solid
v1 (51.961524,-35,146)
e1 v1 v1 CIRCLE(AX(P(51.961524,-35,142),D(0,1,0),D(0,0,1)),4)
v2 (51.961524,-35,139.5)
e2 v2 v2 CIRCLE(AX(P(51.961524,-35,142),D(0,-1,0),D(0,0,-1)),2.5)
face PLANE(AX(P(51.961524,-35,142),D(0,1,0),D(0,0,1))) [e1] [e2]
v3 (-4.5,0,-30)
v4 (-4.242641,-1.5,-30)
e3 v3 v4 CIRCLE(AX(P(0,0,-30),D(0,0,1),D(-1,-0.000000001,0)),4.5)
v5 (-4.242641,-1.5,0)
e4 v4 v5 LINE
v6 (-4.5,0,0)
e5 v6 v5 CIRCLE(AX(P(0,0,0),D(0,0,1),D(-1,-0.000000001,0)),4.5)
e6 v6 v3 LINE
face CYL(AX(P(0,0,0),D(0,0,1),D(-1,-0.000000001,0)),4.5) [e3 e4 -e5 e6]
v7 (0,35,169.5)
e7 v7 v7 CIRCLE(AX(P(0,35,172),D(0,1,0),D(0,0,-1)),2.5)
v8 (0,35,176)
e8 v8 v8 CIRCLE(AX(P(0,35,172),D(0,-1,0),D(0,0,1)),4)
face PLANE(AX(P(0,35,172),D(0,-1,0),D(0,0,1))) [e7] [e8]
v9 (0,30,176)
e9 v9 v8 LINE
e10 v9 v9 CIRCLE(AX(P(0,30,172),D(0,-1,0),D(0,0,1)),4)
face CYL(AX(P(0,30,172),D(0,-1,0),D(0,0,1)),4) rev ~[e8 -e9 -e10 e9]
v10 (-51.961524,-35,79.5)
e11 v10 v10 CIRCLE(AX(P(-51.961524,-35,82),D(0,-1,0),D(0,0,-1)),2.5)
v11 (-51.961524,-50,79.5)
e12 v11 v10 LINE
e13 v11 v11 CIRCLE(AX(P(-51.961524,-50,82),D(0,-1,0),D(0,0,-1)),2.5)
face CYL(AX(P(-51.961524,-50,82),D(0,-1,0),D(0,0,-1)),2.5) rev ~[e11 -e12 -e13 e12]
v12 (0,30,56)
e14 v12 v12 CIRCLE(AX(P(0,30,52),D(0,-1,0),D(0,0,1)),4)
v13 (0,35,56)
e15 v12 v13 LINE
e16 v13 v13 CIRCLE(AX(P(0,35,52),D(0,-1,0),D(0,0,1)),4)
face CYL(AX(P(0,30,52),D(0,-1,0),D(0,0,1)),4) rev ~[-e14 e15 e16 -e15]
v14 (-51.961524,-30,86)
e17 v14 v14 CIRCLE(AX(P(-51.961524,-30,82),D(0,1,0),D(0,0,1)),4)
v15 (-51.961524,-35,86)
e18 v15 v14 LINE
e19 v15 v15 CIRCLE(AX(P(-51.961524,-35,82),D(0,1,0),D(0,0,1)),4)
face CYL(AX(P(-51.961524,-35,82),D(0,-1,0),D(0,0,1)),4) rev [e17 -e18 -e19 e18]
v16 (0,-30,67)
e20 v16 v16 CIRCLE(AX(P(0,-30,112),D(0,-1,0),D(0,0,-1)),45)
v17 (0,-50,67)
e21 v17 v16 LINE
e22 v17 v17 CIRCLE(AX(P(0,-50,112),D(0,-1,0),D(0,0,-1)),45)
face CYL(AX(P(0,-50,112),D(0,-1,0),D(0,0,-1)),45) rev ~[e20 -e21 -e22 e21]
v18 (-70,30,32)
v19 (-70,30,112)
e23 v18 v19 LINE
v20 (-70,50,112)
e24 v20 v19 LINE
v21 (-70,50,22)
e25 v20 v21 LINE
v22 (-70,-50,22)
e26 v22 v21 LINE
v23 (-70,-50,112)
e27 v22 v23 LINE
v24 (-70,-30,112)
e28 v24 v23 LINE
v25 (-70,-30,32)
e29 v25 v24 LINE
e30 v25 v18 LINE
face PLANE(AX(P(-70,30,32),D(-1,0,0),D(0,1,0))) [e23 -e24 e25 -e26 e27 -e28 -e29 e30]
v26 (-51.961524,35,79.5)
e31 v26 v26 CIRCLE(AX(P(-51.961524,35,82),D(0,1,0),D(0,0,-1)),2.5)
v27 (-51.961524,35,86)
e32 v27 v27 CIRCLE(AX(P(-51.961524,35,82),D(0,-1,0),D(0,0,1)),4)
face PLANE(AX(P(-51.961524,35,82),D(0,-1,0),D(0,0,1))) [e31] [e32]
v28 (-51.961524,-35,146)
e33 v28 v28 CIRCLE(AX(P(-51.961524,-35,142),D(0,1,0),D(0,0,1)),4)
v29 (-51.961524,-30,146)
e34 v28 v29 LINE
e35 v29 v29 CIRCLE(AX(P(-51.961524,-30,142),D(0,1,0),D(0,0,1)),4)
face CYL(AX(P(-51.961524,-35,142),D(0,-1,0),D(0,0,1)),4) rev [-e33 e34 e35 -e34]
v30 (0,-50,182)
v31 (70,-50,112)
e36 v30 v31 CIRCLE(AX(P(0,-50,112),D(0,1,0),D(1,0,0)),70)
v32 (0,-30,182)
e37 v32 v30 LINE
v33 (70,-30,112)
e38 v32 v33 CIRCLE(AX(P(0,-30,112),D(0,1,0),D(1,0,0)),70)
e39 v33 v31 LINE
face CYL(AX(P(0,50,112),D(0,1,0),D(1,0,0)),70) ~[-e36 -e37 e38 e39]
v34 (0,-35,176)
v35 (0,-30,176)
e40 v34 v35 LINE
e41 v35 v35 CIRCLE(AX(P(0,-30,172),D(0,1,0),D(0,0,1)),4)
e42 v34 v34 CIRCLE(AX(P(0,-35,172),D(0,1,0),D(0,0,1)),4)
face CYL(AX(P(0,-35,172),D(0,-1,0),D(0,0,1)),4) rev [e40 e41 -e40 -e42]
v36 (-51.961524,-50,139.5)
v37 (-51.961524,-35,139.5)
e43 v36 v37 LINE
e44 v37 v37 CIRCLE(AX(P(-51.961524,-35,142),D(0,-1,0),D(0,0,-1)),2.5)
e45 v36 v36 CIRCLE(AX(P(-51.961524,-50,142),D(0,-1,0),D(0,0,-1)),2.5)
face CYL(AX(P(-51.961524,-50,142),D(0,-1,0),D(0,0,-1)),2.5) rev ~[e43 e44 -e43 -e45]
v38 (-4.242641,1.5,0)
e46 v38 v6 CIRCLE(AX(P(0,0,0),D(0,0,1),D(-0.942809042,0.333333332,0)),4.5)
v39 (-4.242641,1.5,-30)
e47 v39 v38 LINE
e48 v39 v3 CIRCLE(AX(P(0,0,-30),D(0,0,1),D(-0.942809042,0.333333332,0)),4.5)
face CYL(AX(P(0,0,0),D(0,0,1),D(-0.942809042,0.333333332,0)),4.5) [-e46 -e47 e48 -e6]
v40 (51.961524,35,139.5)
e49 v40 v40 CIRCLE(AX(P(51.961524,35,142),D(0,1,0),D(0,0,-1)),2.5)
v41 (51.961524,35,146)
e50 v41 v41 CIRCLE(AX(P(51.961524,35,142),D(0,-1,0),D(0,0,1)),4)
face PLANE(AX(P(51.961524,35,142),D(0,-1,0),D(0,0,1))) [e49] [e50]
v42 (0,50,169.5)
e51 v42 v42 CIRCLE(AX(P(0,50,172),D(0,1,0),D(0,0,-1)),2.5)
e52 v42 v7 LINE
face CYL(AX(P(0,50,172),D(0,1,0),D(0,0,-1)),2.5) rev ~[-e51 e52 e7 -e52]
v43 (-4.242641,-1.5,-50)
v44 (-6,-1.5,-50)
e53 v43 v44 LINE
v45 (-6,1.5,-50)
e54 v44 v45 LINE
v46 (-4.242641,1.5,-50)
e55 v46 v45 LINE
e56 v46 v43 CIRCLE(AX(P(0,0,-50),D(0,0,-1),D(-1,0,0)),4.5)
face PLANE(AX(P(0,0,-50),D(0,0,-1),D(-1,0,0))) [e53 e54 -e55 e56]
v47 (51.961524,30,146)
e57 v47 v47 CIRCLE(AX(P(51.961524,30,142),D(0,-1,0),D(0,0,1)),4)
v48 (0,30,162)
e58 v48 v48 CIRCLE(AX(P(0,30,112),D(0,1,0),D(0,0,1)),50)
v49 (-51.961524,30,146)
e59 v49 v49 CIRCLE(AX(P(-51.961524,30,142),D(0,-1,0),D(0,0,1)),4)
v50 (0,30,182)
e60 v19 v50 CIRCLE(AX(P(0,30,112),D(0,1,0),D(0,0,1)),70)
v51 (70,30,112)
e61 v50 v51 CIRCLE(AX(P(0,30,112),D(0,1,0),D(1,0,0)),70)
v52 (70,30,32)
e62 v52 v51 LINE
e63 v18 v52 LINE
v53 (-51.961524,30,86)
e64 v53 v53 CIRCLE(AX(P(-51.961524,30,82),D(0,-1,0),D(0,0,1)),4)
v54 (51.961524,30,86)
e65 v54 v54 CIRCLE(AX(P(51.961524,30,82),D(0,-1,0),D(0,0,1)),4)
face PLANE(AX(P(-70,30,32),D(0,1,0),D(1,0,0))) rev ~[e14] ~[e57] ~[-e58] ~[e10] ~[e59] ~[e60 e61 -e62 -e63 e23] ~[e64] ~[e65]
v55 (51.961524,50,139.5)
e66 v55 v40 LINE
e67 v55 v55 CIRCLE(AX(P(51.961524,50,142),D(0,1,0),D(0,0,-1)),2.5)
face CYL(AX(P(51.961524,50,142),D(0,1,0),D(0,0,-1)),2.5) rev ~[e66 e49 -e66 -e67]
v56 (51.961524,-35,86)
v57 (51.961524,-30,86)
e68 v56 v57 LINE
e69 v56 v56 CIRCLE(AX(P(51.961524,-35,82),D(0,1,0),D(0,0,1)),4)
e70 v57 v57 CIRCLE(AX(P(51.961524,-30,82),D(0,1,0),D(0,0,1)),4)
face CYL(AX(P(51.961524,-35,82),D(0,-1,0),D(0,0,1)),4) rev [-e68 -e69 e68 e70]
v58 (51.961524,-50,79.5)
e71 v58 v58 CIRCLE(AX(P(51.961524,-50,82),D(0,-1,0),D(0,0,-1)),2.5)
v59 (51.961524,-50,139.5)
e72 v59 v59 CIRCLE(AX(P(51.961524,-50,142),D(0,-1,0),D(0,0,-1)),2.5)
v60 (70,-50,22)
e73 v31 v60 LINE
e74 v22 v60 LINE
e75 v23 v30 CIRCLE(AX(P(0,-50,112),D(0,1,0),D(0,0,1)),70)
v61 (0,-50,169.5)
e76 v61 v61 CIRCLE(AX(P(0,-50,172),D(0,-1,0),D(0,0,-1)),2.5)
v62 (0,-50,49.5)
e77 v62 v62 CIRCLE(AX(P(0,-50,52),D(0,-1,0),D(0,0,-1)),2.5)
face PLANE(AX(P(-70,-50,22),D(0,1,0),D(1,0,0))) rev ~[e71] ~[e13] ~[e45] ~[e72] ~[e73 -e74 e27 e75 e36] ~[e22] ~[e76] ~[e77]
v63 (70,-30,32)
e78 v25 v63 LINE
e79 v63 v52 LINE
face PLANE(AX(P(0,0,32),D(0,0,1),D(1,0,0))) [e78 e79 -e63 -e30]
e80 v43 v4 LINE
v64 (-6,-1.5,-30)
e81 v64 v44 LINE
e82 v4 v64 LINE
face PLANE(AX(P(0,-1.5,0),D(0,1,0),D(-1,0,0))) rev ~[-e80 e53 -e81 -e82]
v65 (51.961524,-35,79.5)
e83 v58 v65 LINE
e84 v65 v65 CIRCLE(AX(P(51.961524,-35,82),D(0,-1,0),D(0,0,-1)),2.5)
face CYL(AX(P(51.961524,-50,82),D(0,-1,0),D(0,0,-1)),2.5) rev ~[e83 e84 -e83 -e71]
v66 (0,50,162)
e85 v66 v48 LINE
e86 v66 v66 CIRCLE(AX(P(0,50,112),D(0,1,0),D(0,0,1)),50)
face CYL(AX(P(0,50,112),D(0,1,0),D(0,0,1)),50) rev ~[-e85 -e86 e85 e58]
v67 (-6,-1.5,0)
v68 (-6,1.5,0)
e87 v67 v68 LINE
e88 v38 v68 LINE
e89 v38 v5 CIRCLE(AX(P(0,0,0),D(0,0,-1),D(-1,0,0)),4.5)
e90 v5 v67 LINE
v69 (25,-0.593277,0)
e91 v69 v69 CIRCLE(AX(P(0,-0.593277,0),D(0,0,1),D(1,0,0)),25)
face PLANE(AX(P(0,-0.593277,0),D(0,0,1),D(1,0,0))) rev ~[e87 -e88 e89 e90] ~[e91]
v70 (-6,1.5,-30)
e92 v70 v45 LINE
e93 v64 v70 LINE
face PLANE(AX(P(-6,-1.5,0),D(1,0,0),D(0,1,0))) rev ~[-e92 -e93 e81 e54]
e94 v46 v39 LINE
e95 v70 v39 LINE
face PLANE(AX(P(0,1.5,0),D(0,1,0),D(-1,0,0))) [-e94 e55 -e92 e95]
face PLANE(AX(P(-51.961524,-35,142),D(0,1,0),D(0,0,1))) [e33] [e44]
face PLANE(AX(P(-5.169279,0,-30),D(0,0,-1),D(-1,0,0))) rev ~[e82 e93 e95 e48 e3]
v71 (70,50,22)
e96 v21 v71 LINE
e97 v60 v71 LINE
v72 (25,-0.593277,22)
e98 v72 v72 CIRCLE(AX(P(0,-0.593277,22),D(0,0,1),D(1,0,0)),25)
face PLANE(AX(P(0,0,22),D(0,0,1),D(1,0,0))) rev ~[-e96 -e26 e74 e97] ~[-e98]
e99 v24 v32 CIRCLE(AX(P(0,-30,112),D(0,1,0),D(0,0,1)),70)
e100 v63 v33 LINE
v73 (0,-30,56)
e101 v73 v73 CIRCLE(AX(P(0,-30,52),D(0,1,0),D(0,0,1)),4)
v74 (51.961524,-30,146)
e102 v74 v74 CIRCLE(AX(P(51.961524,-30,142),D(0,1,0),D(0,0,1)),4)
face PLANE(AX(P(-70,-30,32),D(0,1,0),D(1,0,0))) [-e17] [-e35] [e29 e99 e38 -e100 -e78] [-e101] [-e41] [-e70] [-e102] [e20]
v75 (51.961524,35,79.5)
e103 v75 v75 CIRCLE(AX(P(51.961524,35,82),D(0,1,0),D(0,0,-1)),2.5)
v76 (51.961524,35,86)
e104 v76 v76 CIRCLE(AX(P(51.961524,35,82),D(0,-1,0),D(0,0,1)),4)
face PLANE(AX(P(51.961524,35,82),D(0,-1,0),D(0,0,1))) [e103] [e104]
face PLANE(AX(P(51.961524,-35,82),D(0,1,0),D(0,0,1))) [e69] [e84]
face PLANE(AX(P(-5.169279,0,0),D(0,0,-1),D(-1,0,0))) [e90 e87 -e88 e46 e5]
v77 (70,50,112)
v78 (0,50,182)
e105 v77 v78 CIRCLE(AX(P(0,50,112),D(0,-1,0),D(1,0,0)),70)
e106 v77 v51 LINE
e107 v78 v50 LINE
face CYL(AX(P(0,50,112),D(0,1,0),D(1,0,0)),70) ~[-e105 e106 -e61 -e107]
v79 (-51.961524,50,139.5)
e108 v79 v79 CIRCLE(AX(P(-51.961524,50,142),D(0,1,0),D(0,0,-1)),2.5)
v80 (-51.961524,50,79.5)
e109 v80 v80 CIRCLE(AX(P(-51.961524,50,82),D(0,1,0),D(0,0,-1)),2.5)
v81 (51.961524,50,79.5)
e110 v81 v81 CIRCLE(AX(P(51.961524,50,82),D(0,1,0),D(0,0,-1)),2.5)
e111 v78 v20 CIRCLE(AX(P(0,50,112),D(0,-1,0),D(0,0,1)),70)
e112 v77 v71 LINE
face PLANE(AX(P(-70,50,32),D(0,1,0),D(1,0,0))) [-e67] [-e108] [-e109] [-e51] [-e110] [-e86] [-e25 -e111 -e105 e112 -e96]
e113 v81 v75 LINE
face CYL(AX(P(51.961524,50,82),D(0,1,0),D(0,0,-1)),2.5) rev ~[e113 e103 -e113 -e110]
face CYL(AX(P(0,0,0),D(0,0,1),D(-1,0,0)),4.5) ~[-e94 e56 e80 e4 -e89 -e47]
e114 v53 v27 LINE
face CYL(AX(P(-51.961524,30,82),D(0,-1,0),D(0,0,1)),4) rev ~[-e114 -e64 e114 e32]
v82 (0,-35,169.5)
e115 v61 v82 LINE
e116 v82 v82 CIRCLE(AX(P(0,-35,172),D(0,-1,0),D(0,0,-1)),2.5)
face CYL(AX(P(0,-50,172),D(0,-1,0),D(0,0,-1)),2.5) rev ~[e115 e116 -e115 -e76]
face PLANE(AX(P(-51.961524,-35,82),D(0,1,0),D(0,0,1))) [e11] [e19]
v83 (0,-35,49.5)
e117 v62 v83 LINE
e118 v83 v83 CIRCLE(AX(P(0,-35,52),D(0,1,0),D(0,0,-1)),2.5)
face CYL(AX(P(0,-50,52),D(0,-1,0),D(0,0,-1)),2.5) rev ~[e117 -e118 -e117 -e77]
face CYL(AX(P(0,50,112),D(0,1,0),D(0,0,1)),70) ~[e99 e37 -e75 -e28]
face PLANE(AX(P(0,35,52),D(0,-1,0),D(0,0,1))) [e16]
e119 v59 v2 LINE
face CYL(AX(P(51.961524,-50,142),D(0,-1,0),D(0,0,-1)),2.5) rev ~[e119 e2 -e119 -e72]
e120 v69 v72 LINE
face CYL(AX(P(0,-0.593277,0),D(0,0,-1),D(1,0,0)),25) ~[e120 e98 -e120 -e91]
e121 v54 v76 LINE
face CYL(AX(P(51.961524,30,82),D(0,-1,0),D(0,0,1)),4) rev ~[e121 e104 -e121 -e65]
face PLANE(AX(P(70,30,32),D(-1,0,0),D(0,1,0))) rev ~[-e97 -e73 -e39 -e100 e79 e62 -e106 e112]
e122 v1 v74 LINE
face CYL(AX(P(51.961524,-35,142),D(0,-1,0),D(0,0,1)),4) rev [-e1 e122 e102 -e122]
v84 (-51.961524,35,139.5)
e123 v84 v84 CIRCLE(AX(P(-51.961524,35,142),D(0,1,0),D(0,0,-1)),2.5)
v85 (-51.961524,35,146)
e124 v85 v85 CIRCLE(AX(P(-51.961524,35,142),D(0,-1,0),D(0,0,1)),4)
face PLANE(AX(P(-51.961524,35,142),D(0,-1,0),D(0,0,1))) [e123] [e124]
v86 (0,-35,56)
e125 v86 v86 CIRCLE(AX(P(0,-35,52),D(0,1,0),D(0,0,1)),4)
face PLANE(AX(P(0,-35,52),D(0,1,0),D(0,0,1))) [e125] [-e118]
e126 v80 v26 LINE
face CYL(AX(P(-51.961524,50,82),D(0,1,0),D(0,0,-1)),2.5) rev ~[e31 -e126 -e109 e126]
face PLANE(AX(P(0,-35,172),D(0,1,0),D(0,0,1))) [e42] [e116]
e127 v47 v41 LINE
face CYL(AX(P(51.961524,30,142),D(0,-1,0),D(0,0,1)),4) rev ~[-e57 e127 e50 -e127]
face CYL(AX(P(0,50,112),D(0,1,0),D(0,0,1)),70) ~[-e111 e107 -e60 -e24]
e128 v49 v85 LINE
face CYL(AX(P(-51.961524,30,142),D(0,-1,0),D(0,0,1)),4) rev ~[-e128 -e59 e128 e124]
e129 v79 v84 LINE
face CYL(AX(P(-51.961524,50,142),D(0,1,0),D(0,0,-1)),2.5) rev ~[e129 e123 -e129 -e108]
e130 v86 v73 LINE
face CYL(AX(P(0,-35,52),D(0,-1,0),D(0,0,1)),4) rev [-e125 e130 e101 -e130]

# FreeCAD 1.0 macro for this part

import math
import FreeCAD as App
import Part
import Sketcher

V = App.Vector
Q = App.Units.Quantity


def add_polygon(sketch, points):
    """Adds a closed chain of lines whose ends are joined by coincident constraints."""
    first, n = sketch.GeometryCount, len(points)
    for a, b in zip(points, points[1:] + points[:1]):
        sketch.addGeometry(Part.LineSegment(App.Vector(*a, 0), App.Vector(*b, 0)), False)
    for i in range(n):
        sketch.addConstraint(Sketcher.Constraint("Coincident", first + i, 2, first + (i + 1) % n, 1))

doc = App.newDocument("Part")
params = doc.addObject("Spreadsheet::Sheet", "Params")
for row, (alias, value) in enumerate([
    ("sketch1_diameter", "50 mm"),
    ("pad1_length", "22 mm"),
    ("sketch2_width", "140 mm"),
    ("sketch2_height", "100 mm"),
    ("pad2_length", "10 mm"),
    ("sketch3_width", "140 mm"),
    ("sketch3_height", "20 mm"),
    ("pad3_length", "150 mm"),
    ("sketch4_radius", "70 mm"),
    ("pocket1_length", "150 mm"),
    ("sketch5_diameter", "100 mm"),
    ("sketch6_diameter", "90 mm"),
    ("sketch7_diameter", "9 mm"),
    ("pad4_length", "50 mm"),
    ("sketch8_diameter", "5 mm"),
    ("sketch9_diameter", "5 mm"),
    ("sketch10_diameter", "5 mm"),
    ("sketch11_diameter", "5 mm"),
    ("sketch12_diameter", "5 mm"),
    ("sketch13_diameter", "5 mm"),
    ("sketch14_diameter", "8 mm"),
    ("sketch14_diameter2", "5 mm"),
    ("pocket10_length", "5 mm"),
    ("sketch15_diameter", "5 mm"),
    ("sketch16_diameter", "5 mm"),
    ("sketch17_diameter", "5 mm"),
    ("sketch18_diameter", "5 mm"),
    ("sketch19_diameter", "5 mm"),
    ("sketch20_diameter", "8 mm"),
    ("pocket16_length", "5 mm"),
    ("sketch21_width", "6 mm"),
    ("sketch21_height", "3 mm"),
    ("pad5_length", "50 mm"),
    ("sketch22_radius", "4.5 mm"),
    ("sketch22_height", "3 mm"),
    ("pocket17_length", "30 mm"),
], start=1):
    params.set(f"A{row}", alias)
    params.set(f"B{row}", "=" + value)
    params.setAlias(f"B{row}", alias)

body = doc.addObject("PartDesign::Body", "Body")

# Sketch on XY plane
sketch1 = doc.addObject("Sketcher::SketchObject", "Sketch")
body.addObject(sketch1)
sketch1.AttachmentSupport = (doc.XY_Plane, [""])
sketch1.MapMode = "FlatFace"
sketch1.addGeometry(Part.Circle(V(0, -1, 0), V(0, 0, 1), 25), False)
sketch1.addConstraint(Sketcher.Constraint("PointOnObject", 0, 3, -2))
sketch1.addConstraint(Sketcher.Constraint("Diameter", 0, Q("50 mm")))
sketch1.addConstraint(Sketcher.Constraint("DistanceY", 0, 3, -1, 1, Q("0.593277 mm")))
sketch1.setExpression("Constraints[1]", "Params.sketch1_diameter")
pad1 = doc.addObject("PartDesign::Pad", "Pad")
body.addObject(pad1)
pad1.Profile = sketch1
pad1.setExpression("Length", "Params.pad1_length")

# Sketch on XY plane
sketch2 = doc.addObject("Sketcher::SketchObject", "Sketch001")
body.addObject(sketch2)
sketch2.AttachmentSupport = (doc.XY_Plane, [""])
sketch2.MapMode = "FlatFace"
sketch2.AttachmentOffset = App.Placement(V(0, 0, 22), App.Rotation())
add_polygon(sketch2, [(-70, 50), (-70, -50), (70, -50), (70, 50)])  # lines 0-3
sketch2.addConstraint(Sketcher.Constraint("Vertical", 0))
sketch2.addConstraint(Sketcher.Constraint("Horizontal", 1))
sketch2.addConstraint(Sketcher.Constraint("Vertical", 2))
sketch2.addConstraint(Sketcher.Constraint("Horizontal", 3))
sketch2.addConstraint(Sketcher.Constraint("Symmetric", 0, 2, 2, 2, -1, 1))
sketch2.addConstraint(Sketcher.Constraint("DistanceX", 1, 1, 1, 2, Q("140 mm")))
sketch2.addConstraint(Sketcher.Constraint("DistanceY", 0, 2, 0, 1, Q("100 mm")))
sketch2.setExpression("Constraints[9]", "Params.sketch2_width")
sketch2.setExpression("Constraints[10]", "Params.sketch2_height")
pad2 = doc.addObject("PartDesign::Pad", "Pad001")
body.addObject(pad2)
pad2.Profile = sketch2
pad2.setExpression("Length", "Params.pad2_length")

# Sketch on XY plane
sketch3 = doc.addObject("Sketcher::SketchObject", "Sketch002")
body.addObject(sketch3)
sketch3.AttachmentSupport = (doc.XY_Plane, [""])
sketch3.MapMode = "FlatFace"
sketch3.AttachmentOffset = App.Placement(V(0, 0, 32), App.Rotation())
add_polygon(sketch3, [(-70, 50), (-70, 30), (70, 30), (70, 50)])  # lines 0-3
add_polygon(sketch3, [(-70, -30), (-70, -50), (70, -50), (70, -30)])  # lines 4-7
sketch3.addConstraint(Sketcher.Constraint("Vertical", 0))
sketch3.addConstraint(Sketcher.Constraint("Horizontal", 1))
sketch3.addConstraint(Sketcher.Constraint("Vertical", 2))
sketch3.addConstraint(Sketcher.Constraint("Horizontal", 3))
sketch3.addConstraint(Sketcher.Constraint("Vertical", 4))
sketch3.addConstraint(Sketcher.Constraint("Horizontal", 5))
sketch3.addConstraint(Sketcher.Constraint("Vertical", 6))
sketch3.addConstraint(Sketcher.Constraint("Horizontal", 7))
sketch3.addConstraint(Sketcher.Constraint("Symmetric", 2, 2, 4, 2, -1, 1))
sketch3.addConstraint(Sketcher.Constraint("Symmetric", 0, 2, 6, 2, -1, 1))
sketch3.addConstraint(Sketcher.Constraint("Vertical", 3, 2, 4, 2))
sketch3.addConstraint(Sketcher.Constraint("DistanceX", 1, 1, 1, 2, Q("140 mm")))
sketch3.addConstraint(Sketcher.Constraint("DistanceY", 0, 2, 0, 1, Q("20 mm")))
sketch3.addConstraint(Sketcher.Constraint("DistanceY", -1, 1, 0, 2, Q("30 mm")))
sketch3.setExpression("Constraints[19]", "Params.sketch3_width")
sketch3.setExpression("Constraints[20]", "Params.sketch3_height")
pad3 = doc.addObject("PartDesign::Pad", "Pad002")
body.addObject(pad3)
pad3.Profile = sketch3
pad3.setExpression("Length", "Params.pad3_length")

# Sketch on XZ plane
sketch4 = doc.addObject("Sketcher::SketchObject", "Sketch003")
body.addObject(sketch4)
sketch4.AttachmentSupport = (doc.XZ_Plane, [""])
sketch4.MapMode = "FlatFace"
sketch4.AttachmentOffset = App.Placement(V(0, 0, -50), App.Rotation())
sketch4.addGeometry(Part.ArcOfCircle(Part.Circle(V(0, 112, 0), V(0, 0, 1), 70), math.radians(90), math.radians(180)), False)
sketch4.addGeometry(Part.LineSegment(V(-70, 112, 0), V(-70, 182, 0)), False)
sketch4.addGeometry(Part.LineSegment(V(-70, 182, 0), V(0, 182, 0)), False)
sketch4.addGeometry(Part.LineSegment(V(70, 182, 0), V(70, 112, 0)), False)
sketch4.addGeometry(Part.ArcOfCircle(Part.Circle(V(0, 112, 0), V(0, 0, 1), 70), math.radians(0), math.radians(90)), False)
sketch4.addGeometry(Part.LineSegment(V(0, 182, 0), V(70, 182, 0)), False)
sketch4.addConstraint(Sketcher.Constraint("Tangent", 0, 2, 1, 1))
sketch4.addConstraint(Sketcher.Constraint("Coincident", 1, 2, 2, 1))
sketch4.addConstraint(Sketcher.Constraint("Tangent", 2, 2, 0, 1))
sketch4.addConstraint(Sketcher.Constraint("Tangent", 3, 2, 4, 1))
sketch4.addConstraint(Sketcher.Constraint("Tangent", 4, 2, 5, 1))
sketch4.addConstraint(Sketcher.Constraint("Coincident", 5, 2, 3, 1))
sketch4.addConstraint(Sketcher.Constraint("Vertical", 1))
sketch4.addConstraint(Sketcher.Constraint("Horizontal", 2))
sketch4.addConstraint(Sketcher.Constraint("Vertical", 3))
sketch4.addConstraint(Sketcher.Constraint("Horizontal", 5))
sketch4.addConstraint(Sketcher.Constraint("Coincident", 4, 3, 0, 3))
sketch4.addConstraint(Sketcher.Constraint("Equal", 0, 4))
sketch4.addConstraint(Sketcher.Constraint("PointOnObject", 0, 3, -2))
sketch4.addConstraint(Sketcher.Constraint("Radius", 0, Q("70 mm")))
sketch4.addConstraint(Sketcher.Constraint("DistanceY", -1, 1, 0, 3, Q("112 mm")))
sketch4.setExpression("Constraints[13]", "Params.sketch4_radius")
pocket1 = doc.addObject("PartDesign::Pocket", "Pocket")
body.addObject(pocket1)
pocket1.Profile = sketch4
pocket1.setExpression("Length", "Params.pocket1_length")
pocket1.Reversed = True

# Sketch on XZ plane
sketch5 = doc.addObject("Sketcher::SketchObject", "Sketch004")
body.addObject(sketch5)
sketch5.AttachmentSupport = (doc.XZ_Plane, [""])
sketch5.MapMode = "FlatFace"
sketch5.AttachmentOffset = App.Placement(V(0, 0, -50), App.Rotation())
sketch5.addGeometry(Part.Circle(V(0, 112, 0), V(0, 0, 1), 50), False)
sketch5.addConstraint(Sketcher.Constraint("PointOnObject", 0, 3, -2))
sketch5.addConstraint(Sketcher.Constraint("Diameter", 0, Q("100 mm")))
sketch5.addConstraint(Sketcher.Constraint("DistanceY", -1, 1, 0, 3, Q("112 mm")))
sketch5.setExpression("Constraints[1]", "Params.sketch5_diameter")
pocket2 = doc.addObject("PartDesign::Pocket", "Pocket001")
body.addObject(pocket2)
pocket2.Profile = sketch5
pocket2.Type = "UpToFirst"
pocket2.Reversed = True

# Sketch on XZ plane
sketch6 = doc.addObject("Sketcher::SketchObject", "Sketch005")
body.addObject(sketch6)
sketch6.AttachmentSupport = (doc.XZ_Plane, [""])
sketch6.MapMode = "FlatFace"
sketch6.AttachmentOffset = App.Placement(V(0, 0, 50), App.Rotation())
sketch6.addGeometry(Part.Circle(V(0, 112, 0), V(0, 0, 1), 45), False)
sketch6.addConstraint(Sketcher.Constraint("PointOnObject", 0, 3, -2))
sketch6.addConstraint(Sketcher.Constraint("Diameter", 0, Q("90 mm")))
sketch6.addConstraint(Sketcher.Constraint("DistanceY", -1, 1, 0, 3, Q("112 mm")))
sketch6.setExpression("Constraints[1]", "Params.sketch6_diameter")
pocket3 = doc.addObject("PartDesign::Pocket", "Pocket002")
body.addObject(pocket3)
pocket3.Profile = sketch6
pocket3.Type = "UpToFirst"

# Sketch on XY plane
sketch7 = doc.addObject("Sketcher::SketchObject", "Sketch006")
body.addObject(sketch7)
sketch7.AttachmentSupport = (doc.XY_Plane, [""])
sketch7.MapMode = "FlatFace"
sketch7.addGeometry(Part.Circle(V(0, 0, 0), V(0, 0, 1), 4.5), False)
sketch7.addConstraint(Sketcher.Constraint("Coincident", 0, 3, -1, 1))
sketch7.addConstraint(Sketcher.Constraint("Diameter", 0, Q("9 mm")))
sketch7.setExpression("Constraints[1]", "Params.sketch7_diameter")
pad4 = doc.addObject("PartDesign::Pad", "Pad003")
body.addObject(pad4)
pad4.Profile = sketch7
pad4.setExpression("Length", "Params.pad4_length")
pad4.Reversed = True

# Sketch on XZ plane
sketch8 = doc.addObject("Sketcher::SketchObject", "Sketch007")
body.addObject(sketch8)
sketch8.AttachmentSupport = (doc.XZ_Plane, [""])
sketch8.MapMode = "FlatFace"
sketch8.AttachmentOffset = App.Placement(V(0, 0, 50), App.Rotation())
sketch8.addGeometry(Part.Circle(V(0, 172, 0), V(0, 0, 1), 2.5), False)
sketch8.addConstraint(Sketcher.Constraint("PointOnObject", 0, 3, -2))
sketch8.addConstraint(Sketcher.Constraint("Diameter", 0, Q("5 mm")))
sketch8.addConstraint(Sketcher.Constraint("DistanceY", -1, 1, 0, 3, Q("172 mm")))
sketch8.setExpression("Constraints[1]", "Params.sketch8_diameter")
pocket4 = doc.addObject("PartDesign::Pocket", "Pocket003")
body.addObject(pocket4)
pocket4.Profile = sketch8
pocket4.Type = "UpToFirst"

# Sketch on XZ plane
sketch9 = doc.addObject("Sketcher::SketchObject", "Sketch008")
body.addObject(sketch9)
sketch9.AttachmentSupport = (doc.XZ_Plane, [""])
sketch9.MapMode = "FlatFace"
sketch9.AttachmentOffset = App.Placement(V(0, 0, 50), App.Rotation())
sketch9.addGeometry(Part.Circle(V(52, 142, 0), V(0, 0, 1), 2.5), False)
sketch9.addConstraint(Sketcher.Constraint("Diameter", 0, Q("5 mm")))
sketch9.addConstraint(Sketcher.Constraint("DistanceY", -1, 1, 0, 3, Q("142 mm")))
sketch9.addConstraint(Sketcher.Constraint("DistanceX", -1, 1, 0, 3, Q("51.961524 mm")))
sketch9.setExpression("Constraints[0]", "Params.sketch9_diameter")
pocket5 = doc.addObject("PartDesign::Pocket", "Pocket004")
body.addObject(pocket5)
pocket5.Profile = sketch9
pocket5.Type = "UpToFirst"

# Sketch on XZ plane
sketch10 = doc.addObject("Sketcher::SketchObject", "Sketch009")
body.addObject(sketch10)
sketch10.AttachmentSupport = (doc.XZ_Plane, [""])
sketch10.MapMode = "FlatFace"
sketch10.AttachmentOffset = App.Placement(V(0, 0, 50), App.Rotation())
sketch10.addGeometry(Part.Circle(V(52, 82, 0), V(0, 0, 1), 2.5), False)
sketch10.addConstraint(Sketcher.Constraint("Diameter", 0, Q("5 mm")))
sketch10.addConstraint(Sketcher.Constraint("DistanceY", -1, 1, 0, 3, Q("82 mm")))
sketch10.addConstraint(Sketcher.Constraint("DistanceX", -1, 1, 0, 3, Q("51.961524 mm")))
sketch10.setExpression("Constraints[0]", "Params.sketch10_diameter")
pocket6 = doc.addObject("PartDesign::Pocket", "Pocket005")
body.addObject(pocket6)
pocket6.Profile = sketch10
pocket6.Type = "UpToFirst"

# Sketch on XZ plane
sketch11 = doc.addObject("Sketcher::SketchObject", "Sketch010")
body.addObject(sketch11)
sketch11.AttachmentSupport = (doc.XZ_Plane, [""])
sketch11.MapMode = "FlatFace"
sketch11.AttachmentOffset = App.Placement(V(0, 0, 50), App.Rotation())
sketch11.addGeometry(Part.Circle(V(0, 52, 0), V(0, 0, 1), 2.5), False)
sketch11.addConstraint(Sketcher.Constraint("PointOnObject", 0, 3, -2))
sketch11.addConstraint(Sketcher.Constraint("Diameter", 0, Q("5 mm")))
sketch11.addConstraint(Sketcher.Constraint("DistanceY", -1, 1, 0, 3, Q("52 mm")))
sketch11.setExpression("Constraints[1]", "Params.sketch11_diameter")
pocket7 = doc.addObject("PartDesign::Pocket", "Pocket006")
body.addObject(pocket7)
pocket7.Profile = sketch11
pocket7.Type = "UpToFirst"

# Sketch on XZ plane
sketch12 = doc.addObject("Sketcher::SketchObject", "Sketch011")
body.addObject(sketch12)
sketch12.AttachmentSupport = (doc.XZ_Plane, [""])
sketch12.MapMode = "FlatFace"
sketch12.AttachmentOffset = App.Placement(V(0, 0, 50), App.Rotation())
sketch12.addGeometry(Part.Circle(V(-52, 82, 0), V(0, 0, 1), 2.5), False)
sketch12.addConstraint(Sketcher.Constraint("Diameter", 0, Q("5 mm")))
sketch12.addConstraint(Sketcher.Constraint("DistanceY", -1, 1, 0, 3, Q("82 mm")))
sketch12.addConstraint(Sketcher.Constraint("DistanceX", 0, 3, -1, 1, Q("51.961524 mm")))
sketch12.setExpression("Constraints[0]", "Params.sketch12_diameter")
pocket8 = doc.addObject("PartDesign::Pocket", "Pocket007")
body.addObject(pocket8)
pocket8.Profile = sketch12
pocket8.Type = "UpToFirst"

# Sketch on XZ plane
sketch13 = doc.addObject("Sketcher::SketchObject", "Sketch012")
body.addObject(sketch13)
sketch13.AttachmentSupport = (doc.XZ_Plane, [""])
sketch13.MapMode = "FlatFace"
sketch13.AttachmentOffset = App.Placement(V(0, 0, 50), App.Rotation())
sketch13.addGeometry(Part.Circle(V(-52, 142, 0), V(0, 0, 1), 2.5), False)
sketch13.addConstraint(Sketcher.Constraint("Diameter", 0, Q("5 mm")))
sketch13.addConstraint(Sketcher.Constraint("DistanceY", -1, 1, 0, 3, Q("142 mm")))
sketch13.addConstraint(Sketcher.Constraint("DistanceX", 0, 3, -1, 1, Q("51.961524 mm")))
sketch13.setExpression("Constraints[0]", "Params.sketch13_diameter")
pocket9 = doc.addObject("PartDesign::Pocket", "Pocket008")
body.addObject(pocket9)
pocket9.Profile = sketch13
pocket9.Type = "UpToFirst"

# Sketch on XZ plane
sketch14 = doc.addObject("Sketcher::SketchObject", "Sketch013")
body.addObject(sketch14)
sketch14.AttachmentSupport = (doc.XZ_Plane, [""])
sketch14.MapMode = "FlatFace"
sketch14.AttachmentOffset = App.Placement(V(0, 0, 35), App.Rotation())
sketch14.addGeometry(Part.Circle(V(0, 52, 0), V(0, 0, 1), 4), False)
sketch14.addGeometry(Part.Circle(V(0, 52, 0), V(0, 0, 1), 2.5), False)
sketch14.addGeometry(Part.Circle(V(52, 82, 0), V(0, 0, 1), 4), False)
sketch14.addGeometry(Part.Circle(V(-52, 82, 0), V(0, 0, 1), 4), False)
sketch14.addGeometry(Part.Circle(V(-52, 142, 0), V(0, 0, 1), 4), False)
sketch14.addGeometry(Part.Circle(V(0, 172, 0), V(0, 0, 1), 4), False)
sketch14.addGeometry(Part.Circle(V(52, 142, 0), V(0, 0, 1), 4), False)
sketch14.addConstraint(Sketcher.Constraint("Coincident", 1, 3, 0, 3))
sketch14.addConstraint(Sketcher.Constraint("Equal", 0, 2))
sketch14.addConstraint(Sketcher.Constraint("Equal", 2, 3))
sketch14.addConstraint(Sketcher.Constraint("Equal", 3, 4))
sketch14.addConstraint(Sketcher.Constraint("Equal", 4, 5))
sketch14.addConstraint(Sketcher.Constraint("Equal", 5, 6))
sketch14.addConstraint(Sketcher.Constraint("Symmetric", 2, 3, 3, 3, -2))
sketch14.addConstraint(Sketcher.Constraint("Symmetric", 4, 3, 6, 3, -2))
sketch14.addConstraint(Sketcher.Constraint("PointOnObject", 0, 3, -2))
sketch14.addConstraint(Sketcher.Constraint("PointOnObject", 5, 3, -2))
sketch14.addConstraint(Sketcher.Constraint("Vertical", 3, 3, 4, 3))
sketch14.addConstraint(Sketcher.Constraint("Diameter", 0, Q("8 mm")))
sketch14.addConstraint(Sketcher.Constraint("Diameter", 1, Q("5 mm")))
sketch14.addConstraint(Sketcher.Constraint("DistanceY", -1, 1, 0, 3, Q("52 mm")))
sketch14.addConstraint(Sketcher.Constraint("DistanceY", -1, 1, 2, 3, Q("82 mm")))
sketch14.addConstraint(Sketcher.Constraint("DistanceY", -1, 1, 4, 3, Q("142 mm")))
sketch14.addConstraint(Sketcher.Constraint("DistanceY", -1, 1, 5, 3, Q("172 mm")))
sketch14.addConstraint(Sketcher.Constraint("DistanceX", 3, 3, 2, 3, Q("103.923048 mm")))
sketch14.setExpression("Constraints[11]", "Params.sketch14_diameter")
sketch14.setExpression("Constraints[12]", "Params.sketch14_diameter2")
pocket10 = doc.addObject("PartDesign::Pocket", "Pocket009")
body.addObject(pocket10)
pocket10.Profile = sketch14
pocket10.setExpression("Length", "Params.pocket10_length")

# Sketch on XZ plane
sketch15 = doc.addObject("Sketcher::SketchObject", "Sketch014")
body.addObject(sketch15)
sketch15.AttachmentSupport = (doc.XZ_Plane, [""])
sketch15.MapMode = "FlatFace"
sketch15.AttachmentOffset = App.Placement(V(0, 0, -50), App.Rotation())
sketch15.addGeometry(Part.Circle(V(52, 82, 0), V(0, 0, 1), 2.5), False)
sketch15.addConstraint(Sketcher.Constraint("Diameter", 0, Q("5 mm")))
sketch15.addConstraint(Sketcher.Constraint("DistanceY", -1, 1, 0, 3, Q("82 mm")))
sketch15.addConstraint(Sketcher.Constraint("DistanceX", -1, 1, 0, 3, Q("51.961524 mm")))
sketch15.setExpression("Constraints[0]", "Params.sketch15_diameter")
pocket11 = doc.addObject("PartDesign::Pocket", "Pocket010")
body.addObject(pocket11)
pocket11.Profile = sketch15
pocket11.Type = "UpToFirst"
pocket11.Reversed = True

# Sketch on XZ plane
sketch16 = doc.addObject("Sketcher::SketchObject", "Sketch015")
body.addObject(sketch16)
sketch16.AttachmentSupport = (doc.XZ_Plane, [""])
sketch16.MapMode = "FlatFace"
sketch16.AttachmentOffset = App.Placement(V(0, 0, -50), App.Rotation())
sketch16.addGeometry(Part.Circle(V(52, 142, 0), V(0, 0, 1), 2.5), False)
sketch16.addConstraint(Sketcher.Constraint("Diameter", 0, Q("5 mm")))
sketch16.addConstraint(Sketcher.Constraint("DistanceY", -1, 1, 0, 3, Q("142 mm")))
sketch16.addConstraint(Sketcher.Constraint("DistanceX", -1, 1, 0, 3, Q("51.961524 mm")))
sketch16.setExpression("Constraints[0]", "Params.sketch16_diameter")
pocket12 = doc.addObject("PartDesign::Pocket", "Pocket011")
body.addObject(pocket12)
pocket12.Profile = sketch16
pocket12.Type = "UpToFirst"
pocket12.Reversed = True

# Sketch on XZ plane
sketch17 = doc.addObject("Sketcher::SketchObject", "Sketch016")
body.addObject(sketch17)
sketch17.AttachmentSupport = (doc.XZ_Plane, [""])
sketch17.MapMode = "FlatFace"
sketch17.AttachmentOffset = App.Placement(V(0, 0, -50), App.Rotation())
sketch17.addGeometry(Part.Circle(V(0, 172, 0), V(0, 0, 1), 2.5), False)
sketch17.addConstraint(Sketcher.Constraint("PointOnObject", 0, 3, -2))
sketch17.addConstraint(Sketcher.Constraint("Diameter", 0, Q("5 mm")))
sketch17.addConstraint(Sketcher.Constraint("DistanceY", -1, 1, 0, 3, Q("172 mm")))
sketch17.setExpression("Constraints[1]", "Params.sketch17_diameter")
pocket13 = doc.addObject("PartDesign::Pocket", "Pocket012")
body.addObject(pocket13)
pocket13.Profile = sketch17
pocket13.Type = "UpToFirst"
pocket13.Reversed = True

# Sketch on XZ plane
sketch18 = doc.addObject("Sketcher::SketchObject", "Sketch017")
body.addObject(sketch18)
sketch18.AttachmentSupport = (doc.XZ_Plane, [""])
sketch18.MapMode = "FlatFace"
sketch18.AttachmentOffset = App.Placement(V(0, 0, -50), App.Rotation())
sketch18.addGeometry(Part.Circle(V(-52, 142, 0), V(0, 0, 1), 2.5), False)
sketch18.addConstraint(Sketcher.Constraint("Diameter", 0, Q("5 mm")))
sketch18.addConstraint(Sketcher.Constraint("DistanceY", -1, 1, 0, 3, Q("142 mm")))
sketch18.addConstraint(Sketcher.Constraint("DistanceX", 0, 3, -1, 1, Q("51.961524 mm")))
sketch18.setExpression("Constraints[0]", "Params.sketch18_diameter")
pocket14 = doc.addObject("PartDesign::Pocket", "Pocket013")
body.addObject(pocket14)
pocket14.Profile = sketch18
pocket14.Type = "UpToFirst"
pocket14.Reversed = True

# Sketch on XZ plane
sketch19 = doc.addObject("Sketcher::SketchObject", "Sketch018")
body.addObject(sketch19)
sketch19.AttachmentSupport = (doc.XZ_Plane, [""])
sketch19.MapMode = "FlatFace"
sketch19.AttachmentOffset = App.Placement(V(0, 0, -50), App.Rotation())
sketch19.addGeometry(Part.Circle(V(-52, 82, 0), V(0, 0, 1), 2.5), False)
sketch19.addConstraint(Sketcher.Constraint("Diameter", 0, Q("5 mm")))
sketch19.addConstraint(Sketcher.Constraint("DistanceY", -1, 1, 0, 3, Q("82 mm")))
sketch19.addConstraint(Sketcher.Constraint("DistanceX", 0, 3, -1, 1, Q("51.961524 mm")))
sketch19.setExpression("Constraints[0]", "Params.sketch19_diameter")
pocket15 = doc.addObject("PartDesign::Pocket", "Pocket014")
body.addObject(pocket15)
pocket15.Profile = sketch19
pocket15.Type = "UpToFirst"
pocket15.Reversed = True

# Sketch on XZ plane
sketch20 = doc.addObject("Sketcher::SketchObject", "Sketch019")
body.addObject(sketch20)
sketch20.AttachmentSupport = (doc.XZ_Plane, [""])
sketch20.MapMode = "FlatFace"
sketch20.AttachmentOffset = App.Placement(V(0, 0, -30), App.Rotation())
sketch20.addGeometry(Part.Circle(V(0, 172, 0), V(0, 0, 1), 4), False)
sketch20.addGeometry(Part.Circle(V(-52, 142, 0), V(0, 0, 1), 4), False)
sketch20.addGeometry(Part.Circle(V(-52, 82, 0), V(0, 0, 1), 4), False)
sketch20.addGeometry(Part.Circle(V(0, 52, 0), V(0, 0, 1), 4), False)
sketch20.addGeometry(Part.Circle(V(52, 82, 0), V(0, 0, 1), 4), False)
sketch20.addGeometry(Part.Circle(V(52, 142, 0), V(0, 0, 1), 4), False)
sketch20.addConstraint(Sketcher.Constraint("Equal", 0, 1))
sketch20.addConstraint(Sketcher.Constraint("Equal", 1, 2))
sketch20.addConstraint(Sketcher.Constraint("Equal", 2, 3))
sketch20.addConstraint(Sketcher.Constraint("Equal", 3, 4))
sketch20.addConstraint(Sketcher.Constraint("Equal", 4, 5))
sketch20.addConstraint(Sketcher.Constraint("Symmetric", 2, 3, 4, 3, -2))
sketch20.addConstraint(Sketcher.Constraint("Symmetric", 1, 3, 5, 3, -2))
sketch20.addConstraint(Sketcher.Constraint("PointOnObject", 0, 3, -2))
sketch20.addConstraint(Sketcher.Constraint("PointOnObject", 3, 3, -2))
sketch20.addConstraint(Sketcher.Constraint("Vertical", 1, 3, 2, 3))
sketch20.addConstraint(Sketcher.Constraint("Diameter", 0, Q("8 mm")))
sketch20.addConstraint(Sketcher.Constraint("DistanceY", -1, 1, 0, 3, Q("172 mm")))
sketch20.addConstraint(Sketcher.Constraint("DistanceY", -1, 1, 1, 3, Q("142 mm")))
sketch20.addConstraint(Sketcher.Constraint("DistanceY", -1, 1, 2, 3, Q("82 mm")))
sketch20.addConstraint(Sketcher.Constraint("DistanceY", -1, 1, 3, 3, Q("52 mm")))
sketch20.addConstraint(Sketcher.Constraint("DistanceX", 2, 3, 4, 3, Q("103.923048 mm")))
sketch20.setExpression("Constraints[10]", "Params.sketch20_diameter")
pocket16 = doc.addObject("PartDesign::Pocket", "Pocket015")
body.addObject(pocket16)
pocket16.Profile = sketch20
pocket16.setExpression("Length", "Params.pocket16_length")

# Sketch on XY plane
sketch21 = doc.addObject("Sketcher::SketchObject", "Sketch020")
body.addObject(sketch21)
sketch21.AttachmentSupport = (doc.XY_Plane, [""])
sketch21.MapMode = "FlatFace"
add_polygon(sketch21, [(0, 1.5), (0, -1.5), (-6, -1.5), (-6, 1.5)])  # lines 0-3
sketch21.addConstraint(Sketcher.Constraint("Vertical", 0))
sketch21.addConstraint(Sketcher.Constraint("Horizontal", 1))
sketch21.addConstraint(Sketcher.Constraint("Vertical", 2))
sketch21.addConstraint(Sketcher.Constraint("Horizontal", 3))
sketch21.addConstraint(Sketcher.Constraint("Symmetric", 0, 2, 3, 2, -1, 1))
sketch21.addConstraint(Sketcher.Constraint("DistanceX", 1, 2, 1, 1, Q("6 mm")))
sketch21.addConstraint(Sketcher.Constraint("DistanceY", 0, 2, 0, 1, Q("3 mm")))
sketch21.setExpression("Constraints[9]", "Params.sketch21_width")
sketch21.setExpression("Constraints[10]", "Params.sketch21_height")
pad5 = doc.addObject("PartDesign::Pad", "Pad004")
body.addObject(pad5)
pad5.Profile = sketch21
pad5.setExpression("Length", "Params.pad5_length")
pad5.Reversed = True

# Sketch on XY plane
sketch22 = doc.addObject("Sketcher::SketchObject", "Sketch021")
body.addObject(sketch22)
sketch22.AttachmentSupport = (doc.XY_Plane, [""])
sketch22.MapMode = "FlatFace"
sketch22.addGeometry(Part.LineSegment(V(-6, -1.5, 0), V(-6, 1.5, 0)), False)
sketch22.addGeometry(Part.LineSegment(V(-6, 1.5, 0), V(-4.2, 1.5, 0)), False)
sketch22.addGeometry(Part.ArcOfCircle(Part.Circle(V(0, 0, 0), V(0, 0, 1), 4.5), math.radians(160.53), math.radians(180)), False)
sketch22.addGeometry(Part.ArcOfCircle(Part.Circle(V(0, 0, 0), V(0, 0, 1), 4.5), math.radians(-180), math.radians(-160.53)), False)
sketch22.addGeometry(Part.LineSegment(V(-4.2, -1.5, 0), V(-6, -1.5, 0)), False)
sketch22.addConstraint(Sketcher.Constraint("Coincident", 0, 2, 1, 1))
sketch22.addConstraint(Sketcher.Constraint("Coincident", 1, 2, 2, 1))
sketch22.addConstraint(Sketcher.Constraint("Tangent", 2, 2, 3, 1))
sketch22.addConstraint(Sketcher.Constraint("Coincident", 3, 2, 4, 1))
sketch22.addConstraint(Sketcher.Constraint("Coincident", 4, 2, 0, 1))
sketch22.addConstraint(Sketcher.Constraint("Vertical", 0))
sketch22.addConstraint(Sketcher.Constraint("Horizontal", 1))
sketch22.addConstraint(Sketcher.Constraint("Horizontal", 4))
sketch22.addConstraint(Sketcher.Constraint("Coincident", 2, 3, -1, 1))
sketch22.addConstraint(Sketcher.Constraint("Equal", 2, 3))
sketch22.addConstraint(Sketcher.Constraint("PointOnObject", 2, 2, -1))
sketch22.addConstraint(Sketcher.Constraint("Vertical", 1, 2, 3, 2))
sketch22.addConstraint(Sketcher.Constraint("Radius", 2, Q("4.5 mm")))
sketch22.addConstraint(Sketcher.Constraint("DistanceY", 0, 1, 0, 2, Q("3 mm")))
sketch22.addConstraint(Sketcher.Constraint("DistanceX", 0, 2, -1, 1, Q("6 mm")))
sketch22.setExpression("Constraints[12]", "Params.sketch22_radius")
sketch22.setExpression("Constraints[13]", "Params.sketch22_height")
pocket17 = doc.addObject("PartDesign::Pocket", "Pocket016")
body.addObject(pocket17)
pocket17.Profile = sketch22
pocket17.setExpression("Length", "Params.pocket17_length")

doc.recompute()
